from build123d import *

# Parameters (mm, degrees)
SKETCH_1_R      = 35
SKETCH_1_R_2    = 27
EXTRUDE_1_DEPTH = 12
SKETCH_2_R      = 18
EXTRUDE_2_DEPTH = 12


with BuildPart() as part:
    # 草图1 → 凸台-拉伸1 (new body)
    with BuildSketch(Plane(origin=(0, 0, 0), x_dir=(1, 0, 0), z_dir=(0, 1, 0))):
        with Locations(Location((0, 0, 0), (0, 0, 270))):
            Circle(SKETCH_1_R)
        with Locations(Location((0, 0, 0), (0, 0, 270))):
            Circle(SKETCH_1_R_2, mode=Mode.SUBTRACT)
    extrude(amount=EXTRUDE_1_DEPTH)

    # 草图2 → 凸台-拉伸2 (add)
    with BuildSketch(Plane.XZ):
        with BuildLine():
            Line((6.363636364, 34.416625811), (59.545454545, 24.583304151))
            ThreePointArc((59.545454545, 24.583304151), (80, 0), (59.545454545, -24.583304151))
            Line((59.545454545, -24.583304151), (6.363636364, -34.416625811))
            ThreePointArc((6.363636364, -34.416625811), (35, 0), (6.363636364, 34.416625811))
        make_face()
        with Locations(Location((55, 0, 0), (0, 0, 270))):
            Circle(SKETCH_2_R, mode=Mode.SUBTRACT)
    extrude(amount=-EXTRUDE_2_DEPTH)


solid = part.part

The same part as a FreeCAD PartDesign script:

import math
import FreeCAD as App
import Part
import Sketcher

V = App.Vector

doc = App.newDocument("Part")
body = doc.addObject("PartDesign::Body", "Body")

# Sketch on XZ plane
sketch1 = body.newObject("Sketcher::SketchObject", "Sketch")
sketch1.AttachmentSupport = (doc.getObject("XZ_Plane"), [""])
sketch1.MapMode = "FlatFace"
sketch1.addGeometry([
    Part.Circle(V(0, 0, 0), V(0, 0, 1), 35),
    Part.Circle(V(0, 0, 0), V(0, 0, 1), 27),
], False)
sketch1.addConstraint([
    Sketcher.Constraint("Coincident", 0, 3, -1, 1),
    Sketcher.Constraint("Coincident", 1, 3, -1, 1),
    Sketcher.Constraint("Diameter", 0, 70.0),
    Sketcher.Constraint("Diameter", 1, 54.0),
])
pad1 = body.newObject("PartDesign::Pad", "Pad")
pad1.Profile = sketch1
pad1.Length = 12
pad1.Reversed = True

# Sketch on XZ plane
sketch2 = body.newObject("Sketcher::SketchObject", "Sketch001")
sketch2.AttachmentSupport = (doc.getObject("XZ_Plane"), [""])
sketch2.MapMode = "FlatFace"
sketch2.addGeometry([
    Part.LineSegment(V(59.545455, 24.583304, 0), V(6.363636, 34.416626, 0)),  # 0
    Part.ArcOfCircle(Part.Circle(V(0, 0, 0), V(0, 0, 1), 35), math.radians(-79.524318), math.radians(79.524318)),  # 1
    Part.LineSegment(V(6.363636, -34.416626, 0), V(59.545455, -24.583304, 0)),  # 2
    Part.ArcOfCircle(Part.Circle(V(55, 0, 0), V(0, 0, 1), 25), math.radians(-79.524318), math.radians(79.524318)),  # 3
    Part.Circle(V(55, 0, 0), V(0, 0, 1), 18),  # 4
], False)
sketch2.addConstraint([
    Sketcher.Constraint("Tangent", 0, 2, 1, 2),
    Sketcher.Constraint("Tangent", 1, 1, 2, 1),
    Sketcher.Constraint("Tangent", 2, 2, 3, 1),
    Sketcher.Constraint("Tangent", 3, 2, 0, 1),
    Sketcher.Constraint("Coincident", 1, 3, -1, 1),
    Sketcher.Constraint("Coincident", 4, 3, 3, 3),
    Sketcher.Constraint("PointOnObject", 3, 3, -1),
    Sketcher.Constraint("Diameter", 4, 36.0),
    Sketcher.Constraint("Radius", 1, 35.0),
    Sketcher.Constraint("Radius", 3, 25.0),
    Sketcher.Constraint("DistanceX", -1, 1, 3, 3, 55.0),
])
pad2 = body.newObject("PartDesign::Pad", "Pad001")
pad2.Profile = sketch2
pad2.Length = 12
pad2.Reversed = True

doc.recompute()
